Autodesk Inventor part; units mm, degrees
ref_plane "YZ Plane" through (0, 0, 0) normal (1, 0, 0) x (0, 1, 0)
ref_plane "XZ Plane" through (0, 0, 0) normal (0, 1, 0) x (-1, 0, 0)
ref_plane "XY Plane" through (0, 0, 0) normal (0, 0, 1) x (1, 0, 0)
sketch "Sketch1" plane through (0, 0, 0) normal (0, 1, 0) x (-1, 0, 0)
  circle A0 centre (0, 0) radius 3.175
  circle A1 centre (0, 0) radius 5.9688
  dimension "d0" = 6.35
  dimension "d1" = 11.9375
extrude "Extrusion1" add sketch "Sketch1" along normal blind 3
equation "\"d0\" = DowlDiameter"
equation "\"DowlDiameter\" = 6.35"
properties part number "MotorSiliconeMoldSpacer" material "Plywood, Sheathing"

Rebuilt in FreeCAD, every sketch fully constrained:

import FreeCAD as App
import Part
import Sketcher
from FreeCAD import Vector
Q = App.Units.Quantity

doc = App.newDocument("Part")
params = doc.addObject("Spreadsheet::Sheet", "Params")
for row, (alias, value) in enumerate([
    ("sketch1_diameter", "0.25 in"),
    ("pad1_length", "0.1181102 in"),
], start=1):
    params.set(f"A{row}", alias)
    params.set(f"B{row}", "=" + value)
    params.setAlias(f"B{row}", alias)

body = doc.addObject("PartDesign::Body", "Body")

sketch1 = doc.addObject("Sketcher::SketchObject", "Sketch")
body.addObject(sketch1)
sketch1.AttachmentSupport = (doc.XZ_Plane, [""])
sketch1.MapMode = "FlatFace"
sketch1.addGeometry(Part.Circle(Vector(0, 0, 0), Vector(0, 0, 1), 6), False)
sketch1.addGeometry(Part.Circle(Vector(0, 0, 0), Vector(0, 0, 1), 3.2), False)
sketch1.addConstraint(Sketcher.Constraint("Coincident", 0, 3, -1, 1))
sketch1.addConstraint(Sketcher.Constraint("Coincident", 1, 3, -1, 1))
sketch1.addConstraint(Sketcher.Constraint("Diameter", 1, Q("0.25 in")))
sketch1.addConstraint(Sketcher.Constraint("Diameter", 0, Q("11.9376 mm")))
sketch1.setExpression("Constraints[2]", "Params.sketch1_diameter")
pad1 = doc.addObject("PartDesign::Pad", "Pad")
body.addObject(pad1)
pad1.Profile = sketch1
pad1.setExpression("Length", "Params.pad1_length")
pad1.Reversed = True

doc.recompute()
